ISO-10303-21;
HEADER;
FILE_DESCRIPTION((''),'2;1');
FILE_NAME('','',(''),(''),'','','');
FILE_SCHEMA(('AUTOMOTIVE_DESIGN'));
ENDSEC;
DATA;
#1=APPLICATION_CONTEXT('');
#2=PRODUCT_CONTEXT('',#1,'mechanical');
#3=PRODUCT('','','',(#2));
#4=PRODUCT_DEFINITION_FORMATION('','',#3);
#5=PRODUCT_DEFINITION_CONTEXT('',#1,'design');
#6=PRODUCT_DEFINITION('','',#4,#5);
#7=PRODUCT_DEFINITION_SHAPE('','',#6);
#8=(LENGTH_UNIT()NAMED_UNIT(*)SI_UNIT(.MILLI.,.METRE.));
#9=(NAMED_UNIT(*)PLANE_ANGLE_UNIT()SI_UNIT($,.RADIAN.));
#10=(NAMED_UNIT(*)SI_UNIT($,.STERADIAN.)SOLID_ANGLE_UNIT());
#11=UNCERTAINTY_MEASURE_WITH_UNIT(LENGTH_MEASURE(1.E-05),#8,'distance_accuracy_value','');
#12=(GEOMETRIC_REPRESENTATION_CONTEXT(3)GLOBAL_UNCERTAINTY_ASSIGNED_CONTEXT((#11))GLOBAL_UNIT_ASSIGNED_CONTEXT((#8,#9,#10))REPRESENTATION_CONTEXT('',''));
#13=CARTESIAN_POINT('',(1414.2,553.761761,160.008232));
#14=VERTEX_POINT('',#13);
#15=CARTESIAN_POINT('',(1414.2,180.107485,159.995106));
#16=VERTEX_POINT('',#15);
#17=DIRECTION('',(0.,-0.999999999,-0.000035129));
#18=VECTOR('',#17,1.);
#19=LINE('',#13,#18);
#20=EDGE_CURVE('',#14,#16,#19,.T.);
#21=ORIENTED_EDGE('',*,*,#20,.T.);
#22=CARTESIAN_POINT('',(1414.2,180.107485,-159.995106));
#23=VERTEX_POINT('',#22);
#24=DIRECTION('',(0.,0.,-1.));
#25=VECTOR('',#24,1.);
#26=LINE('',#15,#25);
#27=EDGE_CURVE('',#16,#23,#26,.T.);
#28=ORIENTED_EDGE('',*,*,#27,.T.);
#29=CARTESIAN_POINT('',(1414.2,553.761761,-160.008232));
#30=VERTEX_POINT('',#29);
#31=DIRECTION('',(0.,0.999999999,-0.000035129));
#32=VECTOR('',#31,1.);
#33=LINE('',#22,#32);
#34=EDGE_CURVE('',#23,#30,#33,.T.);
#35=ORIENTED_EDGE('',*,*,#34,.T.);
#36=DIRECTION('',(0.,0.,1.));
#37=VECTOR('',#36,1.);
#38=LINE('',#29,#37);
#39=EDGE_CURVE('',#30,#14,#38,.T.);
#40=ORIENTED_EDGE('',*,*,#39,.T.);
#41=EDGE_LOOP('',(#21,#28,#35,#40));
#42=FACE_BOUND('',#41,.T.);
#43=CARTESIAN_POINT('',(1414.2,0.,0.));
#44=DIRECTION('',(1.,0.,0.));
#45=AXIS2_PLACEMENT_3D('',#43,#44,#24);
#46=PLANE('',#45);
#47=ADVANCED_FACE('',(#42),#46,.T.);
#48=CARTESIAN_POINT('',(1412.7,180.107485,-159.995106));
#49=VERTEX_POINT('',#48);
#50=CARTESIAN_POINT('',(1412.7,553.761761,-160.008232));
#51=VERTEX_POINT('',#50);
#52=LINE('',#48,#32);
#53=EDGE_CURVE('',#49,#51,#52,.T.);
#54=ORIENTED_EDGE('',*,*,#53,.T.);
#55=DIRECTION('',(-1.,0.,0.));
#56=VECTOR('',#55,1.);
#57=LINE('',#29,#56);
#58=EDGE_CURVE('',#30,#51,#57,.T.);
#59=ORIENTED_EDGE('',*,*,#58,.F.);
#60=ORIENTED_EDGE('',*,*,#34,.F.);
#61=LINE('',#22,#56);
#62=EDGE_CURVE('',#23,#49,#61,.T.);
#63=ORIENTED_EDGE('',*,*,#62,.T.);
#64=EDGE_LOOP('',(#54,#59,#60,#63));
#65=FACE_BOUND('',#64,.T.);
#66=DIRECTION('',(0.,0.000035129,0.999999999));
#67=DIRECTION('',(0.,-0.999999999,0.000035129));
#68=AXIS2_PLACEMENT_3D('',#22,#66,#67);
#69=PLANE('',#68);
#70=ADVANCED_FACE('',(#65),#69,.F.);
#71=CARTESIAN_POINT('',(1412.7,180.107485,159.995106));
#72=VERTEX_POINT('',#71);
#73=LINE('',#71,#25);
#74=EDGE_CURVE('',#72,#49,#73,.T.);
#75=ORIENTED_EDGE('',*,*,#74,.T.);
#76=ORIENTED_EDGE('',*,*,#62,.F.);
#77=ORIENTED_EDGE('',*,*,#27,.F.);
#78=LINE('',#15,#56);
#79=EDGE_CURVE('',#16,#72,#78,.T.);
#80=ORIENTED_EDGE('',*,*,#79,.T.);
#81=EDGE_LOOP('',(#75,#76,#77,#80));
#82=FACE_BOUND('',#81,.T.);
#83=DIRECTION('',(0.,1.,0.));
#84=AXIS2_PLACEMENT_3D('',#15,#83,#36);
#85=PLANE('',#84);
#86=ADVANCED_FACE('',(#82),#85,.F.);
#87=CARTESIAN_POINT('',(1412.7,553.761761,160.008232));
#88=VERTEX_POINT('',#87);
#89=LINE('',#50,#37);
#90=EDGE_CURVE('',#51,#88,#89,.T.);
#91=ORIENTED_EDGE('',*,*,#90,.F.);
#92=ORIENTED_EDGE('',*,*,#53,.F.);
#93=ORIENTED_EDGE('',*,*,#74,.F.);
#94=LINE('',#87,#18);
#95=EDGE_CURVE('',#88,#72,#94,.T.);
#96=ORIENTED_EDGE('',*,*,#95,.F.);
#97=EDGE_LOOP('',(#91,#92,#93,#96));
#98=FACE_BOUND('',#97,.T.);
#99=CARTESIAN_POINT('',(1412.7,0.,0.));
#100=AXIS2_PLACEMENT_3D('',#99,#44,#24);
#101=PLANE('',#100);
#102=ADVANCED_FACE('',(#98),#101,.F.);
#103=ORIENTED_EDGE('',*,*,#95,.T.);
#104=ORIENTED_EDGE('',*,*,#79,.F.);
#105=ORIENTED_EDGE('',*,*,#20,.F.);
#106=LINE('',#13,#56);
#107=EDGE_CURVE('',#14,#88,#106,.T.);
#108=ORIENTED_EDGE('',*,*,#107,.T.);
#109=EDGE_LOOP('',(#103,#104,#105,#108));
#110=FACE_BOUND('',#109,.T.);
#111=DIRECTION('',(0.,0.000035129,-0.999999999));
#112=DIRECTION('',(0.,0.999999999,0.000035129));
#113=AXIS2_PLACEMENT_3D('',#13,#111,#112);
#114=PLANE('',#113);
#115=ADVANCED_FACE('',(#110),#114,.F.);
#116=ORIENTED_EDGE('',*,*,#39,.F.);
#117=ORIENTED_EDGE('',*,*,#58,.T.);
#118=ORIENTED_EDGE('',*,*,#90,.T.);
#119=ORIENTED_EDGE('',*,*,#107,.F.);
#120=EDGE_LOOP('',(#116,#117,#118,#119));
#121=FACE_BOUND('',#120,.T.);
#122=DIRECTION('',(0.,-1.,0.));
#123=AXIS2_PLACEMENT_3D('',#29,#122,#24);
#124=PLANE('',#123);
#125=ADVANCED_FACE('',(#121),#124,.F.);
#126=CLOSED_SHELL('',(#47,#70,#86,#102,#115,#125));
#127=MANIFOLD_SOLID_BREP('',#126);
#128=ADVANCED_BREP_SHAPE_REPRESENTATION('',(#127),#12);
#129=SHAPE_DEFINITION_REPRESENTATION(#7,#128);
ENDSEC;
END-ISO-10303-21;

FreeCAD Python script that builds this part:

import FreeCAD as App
import Part
import Sketcher

V = App.Vector
Q = App.Units.Quantity

doc = App.newDocument("Part")
body = doc.addObject("PartDesign::Body", "Body")

# Sketch on YZ plane
sketch1 = body.newObject("Sketcher::SketchObject", "Sketch")
sketch1.AttachmentSupport = (doc.getObject("YZ_Plane"), [""])
sketch1.MapMode = "FlatFace"
sketch1.AttachmentOffset = App.Placement(V(0, 0, 1412.7), App.Rotation())
sketch1.addGeometry([
    Part.LineSegment(V(180, -160, 0), V(554, -160, 0)),
    Part.LineSegment(V(554, -160, 0), V(554, 160, 0)),
    Part.LineSegment(V(554, 160, 0), V(180, 160, 0)),
    Part.LineSegment(V(180, 160, 0), V(180, -160, 0)),
], False)
sketch1.addConstraint([
    Sketcher.Constraint("Coincident", 0, 2, 1, 1),
    Sketcher.Constraint("Coincident", 1, 2, 2, 1),
    Sketcher.Constraint("Coincident", 2, 2, 3, 1),
    Sketcher.Constraint("Coincident", 3, 2, 0, 1),
    Sketcher.Constraint("Vertical", 1),
    Sketcher.Constraint("Vertical", 3),
    Sketcher.Constraint("DistanceY", 1, 1, 1, 2, Q("320.016465 mm")),
    Sketcher.Constraint("DistanceY", 3, 2, 3, 1, Q("319.990212 mm")),
    Sketcher.Constraint("DistanceX", -1, 1, 0, 2, Q("553.761761 mm")),
    Sketcher.Constraint("DistanceY", 0, 2, 2, 2, Q("320.003339 mm")),
    Sketcher.Constraint("Distance", 0, Q("373.654276 mm")),
    Sketcher.Constraint("DistanceY", 0, 2, -1, 1, Q("160.008232 mm")),
])
pad1 = body.newObject("PartDesign::Pad", "Pad")
pad1.Profile = sketch1
pad1.Length = 1.5

doc.recompute()
